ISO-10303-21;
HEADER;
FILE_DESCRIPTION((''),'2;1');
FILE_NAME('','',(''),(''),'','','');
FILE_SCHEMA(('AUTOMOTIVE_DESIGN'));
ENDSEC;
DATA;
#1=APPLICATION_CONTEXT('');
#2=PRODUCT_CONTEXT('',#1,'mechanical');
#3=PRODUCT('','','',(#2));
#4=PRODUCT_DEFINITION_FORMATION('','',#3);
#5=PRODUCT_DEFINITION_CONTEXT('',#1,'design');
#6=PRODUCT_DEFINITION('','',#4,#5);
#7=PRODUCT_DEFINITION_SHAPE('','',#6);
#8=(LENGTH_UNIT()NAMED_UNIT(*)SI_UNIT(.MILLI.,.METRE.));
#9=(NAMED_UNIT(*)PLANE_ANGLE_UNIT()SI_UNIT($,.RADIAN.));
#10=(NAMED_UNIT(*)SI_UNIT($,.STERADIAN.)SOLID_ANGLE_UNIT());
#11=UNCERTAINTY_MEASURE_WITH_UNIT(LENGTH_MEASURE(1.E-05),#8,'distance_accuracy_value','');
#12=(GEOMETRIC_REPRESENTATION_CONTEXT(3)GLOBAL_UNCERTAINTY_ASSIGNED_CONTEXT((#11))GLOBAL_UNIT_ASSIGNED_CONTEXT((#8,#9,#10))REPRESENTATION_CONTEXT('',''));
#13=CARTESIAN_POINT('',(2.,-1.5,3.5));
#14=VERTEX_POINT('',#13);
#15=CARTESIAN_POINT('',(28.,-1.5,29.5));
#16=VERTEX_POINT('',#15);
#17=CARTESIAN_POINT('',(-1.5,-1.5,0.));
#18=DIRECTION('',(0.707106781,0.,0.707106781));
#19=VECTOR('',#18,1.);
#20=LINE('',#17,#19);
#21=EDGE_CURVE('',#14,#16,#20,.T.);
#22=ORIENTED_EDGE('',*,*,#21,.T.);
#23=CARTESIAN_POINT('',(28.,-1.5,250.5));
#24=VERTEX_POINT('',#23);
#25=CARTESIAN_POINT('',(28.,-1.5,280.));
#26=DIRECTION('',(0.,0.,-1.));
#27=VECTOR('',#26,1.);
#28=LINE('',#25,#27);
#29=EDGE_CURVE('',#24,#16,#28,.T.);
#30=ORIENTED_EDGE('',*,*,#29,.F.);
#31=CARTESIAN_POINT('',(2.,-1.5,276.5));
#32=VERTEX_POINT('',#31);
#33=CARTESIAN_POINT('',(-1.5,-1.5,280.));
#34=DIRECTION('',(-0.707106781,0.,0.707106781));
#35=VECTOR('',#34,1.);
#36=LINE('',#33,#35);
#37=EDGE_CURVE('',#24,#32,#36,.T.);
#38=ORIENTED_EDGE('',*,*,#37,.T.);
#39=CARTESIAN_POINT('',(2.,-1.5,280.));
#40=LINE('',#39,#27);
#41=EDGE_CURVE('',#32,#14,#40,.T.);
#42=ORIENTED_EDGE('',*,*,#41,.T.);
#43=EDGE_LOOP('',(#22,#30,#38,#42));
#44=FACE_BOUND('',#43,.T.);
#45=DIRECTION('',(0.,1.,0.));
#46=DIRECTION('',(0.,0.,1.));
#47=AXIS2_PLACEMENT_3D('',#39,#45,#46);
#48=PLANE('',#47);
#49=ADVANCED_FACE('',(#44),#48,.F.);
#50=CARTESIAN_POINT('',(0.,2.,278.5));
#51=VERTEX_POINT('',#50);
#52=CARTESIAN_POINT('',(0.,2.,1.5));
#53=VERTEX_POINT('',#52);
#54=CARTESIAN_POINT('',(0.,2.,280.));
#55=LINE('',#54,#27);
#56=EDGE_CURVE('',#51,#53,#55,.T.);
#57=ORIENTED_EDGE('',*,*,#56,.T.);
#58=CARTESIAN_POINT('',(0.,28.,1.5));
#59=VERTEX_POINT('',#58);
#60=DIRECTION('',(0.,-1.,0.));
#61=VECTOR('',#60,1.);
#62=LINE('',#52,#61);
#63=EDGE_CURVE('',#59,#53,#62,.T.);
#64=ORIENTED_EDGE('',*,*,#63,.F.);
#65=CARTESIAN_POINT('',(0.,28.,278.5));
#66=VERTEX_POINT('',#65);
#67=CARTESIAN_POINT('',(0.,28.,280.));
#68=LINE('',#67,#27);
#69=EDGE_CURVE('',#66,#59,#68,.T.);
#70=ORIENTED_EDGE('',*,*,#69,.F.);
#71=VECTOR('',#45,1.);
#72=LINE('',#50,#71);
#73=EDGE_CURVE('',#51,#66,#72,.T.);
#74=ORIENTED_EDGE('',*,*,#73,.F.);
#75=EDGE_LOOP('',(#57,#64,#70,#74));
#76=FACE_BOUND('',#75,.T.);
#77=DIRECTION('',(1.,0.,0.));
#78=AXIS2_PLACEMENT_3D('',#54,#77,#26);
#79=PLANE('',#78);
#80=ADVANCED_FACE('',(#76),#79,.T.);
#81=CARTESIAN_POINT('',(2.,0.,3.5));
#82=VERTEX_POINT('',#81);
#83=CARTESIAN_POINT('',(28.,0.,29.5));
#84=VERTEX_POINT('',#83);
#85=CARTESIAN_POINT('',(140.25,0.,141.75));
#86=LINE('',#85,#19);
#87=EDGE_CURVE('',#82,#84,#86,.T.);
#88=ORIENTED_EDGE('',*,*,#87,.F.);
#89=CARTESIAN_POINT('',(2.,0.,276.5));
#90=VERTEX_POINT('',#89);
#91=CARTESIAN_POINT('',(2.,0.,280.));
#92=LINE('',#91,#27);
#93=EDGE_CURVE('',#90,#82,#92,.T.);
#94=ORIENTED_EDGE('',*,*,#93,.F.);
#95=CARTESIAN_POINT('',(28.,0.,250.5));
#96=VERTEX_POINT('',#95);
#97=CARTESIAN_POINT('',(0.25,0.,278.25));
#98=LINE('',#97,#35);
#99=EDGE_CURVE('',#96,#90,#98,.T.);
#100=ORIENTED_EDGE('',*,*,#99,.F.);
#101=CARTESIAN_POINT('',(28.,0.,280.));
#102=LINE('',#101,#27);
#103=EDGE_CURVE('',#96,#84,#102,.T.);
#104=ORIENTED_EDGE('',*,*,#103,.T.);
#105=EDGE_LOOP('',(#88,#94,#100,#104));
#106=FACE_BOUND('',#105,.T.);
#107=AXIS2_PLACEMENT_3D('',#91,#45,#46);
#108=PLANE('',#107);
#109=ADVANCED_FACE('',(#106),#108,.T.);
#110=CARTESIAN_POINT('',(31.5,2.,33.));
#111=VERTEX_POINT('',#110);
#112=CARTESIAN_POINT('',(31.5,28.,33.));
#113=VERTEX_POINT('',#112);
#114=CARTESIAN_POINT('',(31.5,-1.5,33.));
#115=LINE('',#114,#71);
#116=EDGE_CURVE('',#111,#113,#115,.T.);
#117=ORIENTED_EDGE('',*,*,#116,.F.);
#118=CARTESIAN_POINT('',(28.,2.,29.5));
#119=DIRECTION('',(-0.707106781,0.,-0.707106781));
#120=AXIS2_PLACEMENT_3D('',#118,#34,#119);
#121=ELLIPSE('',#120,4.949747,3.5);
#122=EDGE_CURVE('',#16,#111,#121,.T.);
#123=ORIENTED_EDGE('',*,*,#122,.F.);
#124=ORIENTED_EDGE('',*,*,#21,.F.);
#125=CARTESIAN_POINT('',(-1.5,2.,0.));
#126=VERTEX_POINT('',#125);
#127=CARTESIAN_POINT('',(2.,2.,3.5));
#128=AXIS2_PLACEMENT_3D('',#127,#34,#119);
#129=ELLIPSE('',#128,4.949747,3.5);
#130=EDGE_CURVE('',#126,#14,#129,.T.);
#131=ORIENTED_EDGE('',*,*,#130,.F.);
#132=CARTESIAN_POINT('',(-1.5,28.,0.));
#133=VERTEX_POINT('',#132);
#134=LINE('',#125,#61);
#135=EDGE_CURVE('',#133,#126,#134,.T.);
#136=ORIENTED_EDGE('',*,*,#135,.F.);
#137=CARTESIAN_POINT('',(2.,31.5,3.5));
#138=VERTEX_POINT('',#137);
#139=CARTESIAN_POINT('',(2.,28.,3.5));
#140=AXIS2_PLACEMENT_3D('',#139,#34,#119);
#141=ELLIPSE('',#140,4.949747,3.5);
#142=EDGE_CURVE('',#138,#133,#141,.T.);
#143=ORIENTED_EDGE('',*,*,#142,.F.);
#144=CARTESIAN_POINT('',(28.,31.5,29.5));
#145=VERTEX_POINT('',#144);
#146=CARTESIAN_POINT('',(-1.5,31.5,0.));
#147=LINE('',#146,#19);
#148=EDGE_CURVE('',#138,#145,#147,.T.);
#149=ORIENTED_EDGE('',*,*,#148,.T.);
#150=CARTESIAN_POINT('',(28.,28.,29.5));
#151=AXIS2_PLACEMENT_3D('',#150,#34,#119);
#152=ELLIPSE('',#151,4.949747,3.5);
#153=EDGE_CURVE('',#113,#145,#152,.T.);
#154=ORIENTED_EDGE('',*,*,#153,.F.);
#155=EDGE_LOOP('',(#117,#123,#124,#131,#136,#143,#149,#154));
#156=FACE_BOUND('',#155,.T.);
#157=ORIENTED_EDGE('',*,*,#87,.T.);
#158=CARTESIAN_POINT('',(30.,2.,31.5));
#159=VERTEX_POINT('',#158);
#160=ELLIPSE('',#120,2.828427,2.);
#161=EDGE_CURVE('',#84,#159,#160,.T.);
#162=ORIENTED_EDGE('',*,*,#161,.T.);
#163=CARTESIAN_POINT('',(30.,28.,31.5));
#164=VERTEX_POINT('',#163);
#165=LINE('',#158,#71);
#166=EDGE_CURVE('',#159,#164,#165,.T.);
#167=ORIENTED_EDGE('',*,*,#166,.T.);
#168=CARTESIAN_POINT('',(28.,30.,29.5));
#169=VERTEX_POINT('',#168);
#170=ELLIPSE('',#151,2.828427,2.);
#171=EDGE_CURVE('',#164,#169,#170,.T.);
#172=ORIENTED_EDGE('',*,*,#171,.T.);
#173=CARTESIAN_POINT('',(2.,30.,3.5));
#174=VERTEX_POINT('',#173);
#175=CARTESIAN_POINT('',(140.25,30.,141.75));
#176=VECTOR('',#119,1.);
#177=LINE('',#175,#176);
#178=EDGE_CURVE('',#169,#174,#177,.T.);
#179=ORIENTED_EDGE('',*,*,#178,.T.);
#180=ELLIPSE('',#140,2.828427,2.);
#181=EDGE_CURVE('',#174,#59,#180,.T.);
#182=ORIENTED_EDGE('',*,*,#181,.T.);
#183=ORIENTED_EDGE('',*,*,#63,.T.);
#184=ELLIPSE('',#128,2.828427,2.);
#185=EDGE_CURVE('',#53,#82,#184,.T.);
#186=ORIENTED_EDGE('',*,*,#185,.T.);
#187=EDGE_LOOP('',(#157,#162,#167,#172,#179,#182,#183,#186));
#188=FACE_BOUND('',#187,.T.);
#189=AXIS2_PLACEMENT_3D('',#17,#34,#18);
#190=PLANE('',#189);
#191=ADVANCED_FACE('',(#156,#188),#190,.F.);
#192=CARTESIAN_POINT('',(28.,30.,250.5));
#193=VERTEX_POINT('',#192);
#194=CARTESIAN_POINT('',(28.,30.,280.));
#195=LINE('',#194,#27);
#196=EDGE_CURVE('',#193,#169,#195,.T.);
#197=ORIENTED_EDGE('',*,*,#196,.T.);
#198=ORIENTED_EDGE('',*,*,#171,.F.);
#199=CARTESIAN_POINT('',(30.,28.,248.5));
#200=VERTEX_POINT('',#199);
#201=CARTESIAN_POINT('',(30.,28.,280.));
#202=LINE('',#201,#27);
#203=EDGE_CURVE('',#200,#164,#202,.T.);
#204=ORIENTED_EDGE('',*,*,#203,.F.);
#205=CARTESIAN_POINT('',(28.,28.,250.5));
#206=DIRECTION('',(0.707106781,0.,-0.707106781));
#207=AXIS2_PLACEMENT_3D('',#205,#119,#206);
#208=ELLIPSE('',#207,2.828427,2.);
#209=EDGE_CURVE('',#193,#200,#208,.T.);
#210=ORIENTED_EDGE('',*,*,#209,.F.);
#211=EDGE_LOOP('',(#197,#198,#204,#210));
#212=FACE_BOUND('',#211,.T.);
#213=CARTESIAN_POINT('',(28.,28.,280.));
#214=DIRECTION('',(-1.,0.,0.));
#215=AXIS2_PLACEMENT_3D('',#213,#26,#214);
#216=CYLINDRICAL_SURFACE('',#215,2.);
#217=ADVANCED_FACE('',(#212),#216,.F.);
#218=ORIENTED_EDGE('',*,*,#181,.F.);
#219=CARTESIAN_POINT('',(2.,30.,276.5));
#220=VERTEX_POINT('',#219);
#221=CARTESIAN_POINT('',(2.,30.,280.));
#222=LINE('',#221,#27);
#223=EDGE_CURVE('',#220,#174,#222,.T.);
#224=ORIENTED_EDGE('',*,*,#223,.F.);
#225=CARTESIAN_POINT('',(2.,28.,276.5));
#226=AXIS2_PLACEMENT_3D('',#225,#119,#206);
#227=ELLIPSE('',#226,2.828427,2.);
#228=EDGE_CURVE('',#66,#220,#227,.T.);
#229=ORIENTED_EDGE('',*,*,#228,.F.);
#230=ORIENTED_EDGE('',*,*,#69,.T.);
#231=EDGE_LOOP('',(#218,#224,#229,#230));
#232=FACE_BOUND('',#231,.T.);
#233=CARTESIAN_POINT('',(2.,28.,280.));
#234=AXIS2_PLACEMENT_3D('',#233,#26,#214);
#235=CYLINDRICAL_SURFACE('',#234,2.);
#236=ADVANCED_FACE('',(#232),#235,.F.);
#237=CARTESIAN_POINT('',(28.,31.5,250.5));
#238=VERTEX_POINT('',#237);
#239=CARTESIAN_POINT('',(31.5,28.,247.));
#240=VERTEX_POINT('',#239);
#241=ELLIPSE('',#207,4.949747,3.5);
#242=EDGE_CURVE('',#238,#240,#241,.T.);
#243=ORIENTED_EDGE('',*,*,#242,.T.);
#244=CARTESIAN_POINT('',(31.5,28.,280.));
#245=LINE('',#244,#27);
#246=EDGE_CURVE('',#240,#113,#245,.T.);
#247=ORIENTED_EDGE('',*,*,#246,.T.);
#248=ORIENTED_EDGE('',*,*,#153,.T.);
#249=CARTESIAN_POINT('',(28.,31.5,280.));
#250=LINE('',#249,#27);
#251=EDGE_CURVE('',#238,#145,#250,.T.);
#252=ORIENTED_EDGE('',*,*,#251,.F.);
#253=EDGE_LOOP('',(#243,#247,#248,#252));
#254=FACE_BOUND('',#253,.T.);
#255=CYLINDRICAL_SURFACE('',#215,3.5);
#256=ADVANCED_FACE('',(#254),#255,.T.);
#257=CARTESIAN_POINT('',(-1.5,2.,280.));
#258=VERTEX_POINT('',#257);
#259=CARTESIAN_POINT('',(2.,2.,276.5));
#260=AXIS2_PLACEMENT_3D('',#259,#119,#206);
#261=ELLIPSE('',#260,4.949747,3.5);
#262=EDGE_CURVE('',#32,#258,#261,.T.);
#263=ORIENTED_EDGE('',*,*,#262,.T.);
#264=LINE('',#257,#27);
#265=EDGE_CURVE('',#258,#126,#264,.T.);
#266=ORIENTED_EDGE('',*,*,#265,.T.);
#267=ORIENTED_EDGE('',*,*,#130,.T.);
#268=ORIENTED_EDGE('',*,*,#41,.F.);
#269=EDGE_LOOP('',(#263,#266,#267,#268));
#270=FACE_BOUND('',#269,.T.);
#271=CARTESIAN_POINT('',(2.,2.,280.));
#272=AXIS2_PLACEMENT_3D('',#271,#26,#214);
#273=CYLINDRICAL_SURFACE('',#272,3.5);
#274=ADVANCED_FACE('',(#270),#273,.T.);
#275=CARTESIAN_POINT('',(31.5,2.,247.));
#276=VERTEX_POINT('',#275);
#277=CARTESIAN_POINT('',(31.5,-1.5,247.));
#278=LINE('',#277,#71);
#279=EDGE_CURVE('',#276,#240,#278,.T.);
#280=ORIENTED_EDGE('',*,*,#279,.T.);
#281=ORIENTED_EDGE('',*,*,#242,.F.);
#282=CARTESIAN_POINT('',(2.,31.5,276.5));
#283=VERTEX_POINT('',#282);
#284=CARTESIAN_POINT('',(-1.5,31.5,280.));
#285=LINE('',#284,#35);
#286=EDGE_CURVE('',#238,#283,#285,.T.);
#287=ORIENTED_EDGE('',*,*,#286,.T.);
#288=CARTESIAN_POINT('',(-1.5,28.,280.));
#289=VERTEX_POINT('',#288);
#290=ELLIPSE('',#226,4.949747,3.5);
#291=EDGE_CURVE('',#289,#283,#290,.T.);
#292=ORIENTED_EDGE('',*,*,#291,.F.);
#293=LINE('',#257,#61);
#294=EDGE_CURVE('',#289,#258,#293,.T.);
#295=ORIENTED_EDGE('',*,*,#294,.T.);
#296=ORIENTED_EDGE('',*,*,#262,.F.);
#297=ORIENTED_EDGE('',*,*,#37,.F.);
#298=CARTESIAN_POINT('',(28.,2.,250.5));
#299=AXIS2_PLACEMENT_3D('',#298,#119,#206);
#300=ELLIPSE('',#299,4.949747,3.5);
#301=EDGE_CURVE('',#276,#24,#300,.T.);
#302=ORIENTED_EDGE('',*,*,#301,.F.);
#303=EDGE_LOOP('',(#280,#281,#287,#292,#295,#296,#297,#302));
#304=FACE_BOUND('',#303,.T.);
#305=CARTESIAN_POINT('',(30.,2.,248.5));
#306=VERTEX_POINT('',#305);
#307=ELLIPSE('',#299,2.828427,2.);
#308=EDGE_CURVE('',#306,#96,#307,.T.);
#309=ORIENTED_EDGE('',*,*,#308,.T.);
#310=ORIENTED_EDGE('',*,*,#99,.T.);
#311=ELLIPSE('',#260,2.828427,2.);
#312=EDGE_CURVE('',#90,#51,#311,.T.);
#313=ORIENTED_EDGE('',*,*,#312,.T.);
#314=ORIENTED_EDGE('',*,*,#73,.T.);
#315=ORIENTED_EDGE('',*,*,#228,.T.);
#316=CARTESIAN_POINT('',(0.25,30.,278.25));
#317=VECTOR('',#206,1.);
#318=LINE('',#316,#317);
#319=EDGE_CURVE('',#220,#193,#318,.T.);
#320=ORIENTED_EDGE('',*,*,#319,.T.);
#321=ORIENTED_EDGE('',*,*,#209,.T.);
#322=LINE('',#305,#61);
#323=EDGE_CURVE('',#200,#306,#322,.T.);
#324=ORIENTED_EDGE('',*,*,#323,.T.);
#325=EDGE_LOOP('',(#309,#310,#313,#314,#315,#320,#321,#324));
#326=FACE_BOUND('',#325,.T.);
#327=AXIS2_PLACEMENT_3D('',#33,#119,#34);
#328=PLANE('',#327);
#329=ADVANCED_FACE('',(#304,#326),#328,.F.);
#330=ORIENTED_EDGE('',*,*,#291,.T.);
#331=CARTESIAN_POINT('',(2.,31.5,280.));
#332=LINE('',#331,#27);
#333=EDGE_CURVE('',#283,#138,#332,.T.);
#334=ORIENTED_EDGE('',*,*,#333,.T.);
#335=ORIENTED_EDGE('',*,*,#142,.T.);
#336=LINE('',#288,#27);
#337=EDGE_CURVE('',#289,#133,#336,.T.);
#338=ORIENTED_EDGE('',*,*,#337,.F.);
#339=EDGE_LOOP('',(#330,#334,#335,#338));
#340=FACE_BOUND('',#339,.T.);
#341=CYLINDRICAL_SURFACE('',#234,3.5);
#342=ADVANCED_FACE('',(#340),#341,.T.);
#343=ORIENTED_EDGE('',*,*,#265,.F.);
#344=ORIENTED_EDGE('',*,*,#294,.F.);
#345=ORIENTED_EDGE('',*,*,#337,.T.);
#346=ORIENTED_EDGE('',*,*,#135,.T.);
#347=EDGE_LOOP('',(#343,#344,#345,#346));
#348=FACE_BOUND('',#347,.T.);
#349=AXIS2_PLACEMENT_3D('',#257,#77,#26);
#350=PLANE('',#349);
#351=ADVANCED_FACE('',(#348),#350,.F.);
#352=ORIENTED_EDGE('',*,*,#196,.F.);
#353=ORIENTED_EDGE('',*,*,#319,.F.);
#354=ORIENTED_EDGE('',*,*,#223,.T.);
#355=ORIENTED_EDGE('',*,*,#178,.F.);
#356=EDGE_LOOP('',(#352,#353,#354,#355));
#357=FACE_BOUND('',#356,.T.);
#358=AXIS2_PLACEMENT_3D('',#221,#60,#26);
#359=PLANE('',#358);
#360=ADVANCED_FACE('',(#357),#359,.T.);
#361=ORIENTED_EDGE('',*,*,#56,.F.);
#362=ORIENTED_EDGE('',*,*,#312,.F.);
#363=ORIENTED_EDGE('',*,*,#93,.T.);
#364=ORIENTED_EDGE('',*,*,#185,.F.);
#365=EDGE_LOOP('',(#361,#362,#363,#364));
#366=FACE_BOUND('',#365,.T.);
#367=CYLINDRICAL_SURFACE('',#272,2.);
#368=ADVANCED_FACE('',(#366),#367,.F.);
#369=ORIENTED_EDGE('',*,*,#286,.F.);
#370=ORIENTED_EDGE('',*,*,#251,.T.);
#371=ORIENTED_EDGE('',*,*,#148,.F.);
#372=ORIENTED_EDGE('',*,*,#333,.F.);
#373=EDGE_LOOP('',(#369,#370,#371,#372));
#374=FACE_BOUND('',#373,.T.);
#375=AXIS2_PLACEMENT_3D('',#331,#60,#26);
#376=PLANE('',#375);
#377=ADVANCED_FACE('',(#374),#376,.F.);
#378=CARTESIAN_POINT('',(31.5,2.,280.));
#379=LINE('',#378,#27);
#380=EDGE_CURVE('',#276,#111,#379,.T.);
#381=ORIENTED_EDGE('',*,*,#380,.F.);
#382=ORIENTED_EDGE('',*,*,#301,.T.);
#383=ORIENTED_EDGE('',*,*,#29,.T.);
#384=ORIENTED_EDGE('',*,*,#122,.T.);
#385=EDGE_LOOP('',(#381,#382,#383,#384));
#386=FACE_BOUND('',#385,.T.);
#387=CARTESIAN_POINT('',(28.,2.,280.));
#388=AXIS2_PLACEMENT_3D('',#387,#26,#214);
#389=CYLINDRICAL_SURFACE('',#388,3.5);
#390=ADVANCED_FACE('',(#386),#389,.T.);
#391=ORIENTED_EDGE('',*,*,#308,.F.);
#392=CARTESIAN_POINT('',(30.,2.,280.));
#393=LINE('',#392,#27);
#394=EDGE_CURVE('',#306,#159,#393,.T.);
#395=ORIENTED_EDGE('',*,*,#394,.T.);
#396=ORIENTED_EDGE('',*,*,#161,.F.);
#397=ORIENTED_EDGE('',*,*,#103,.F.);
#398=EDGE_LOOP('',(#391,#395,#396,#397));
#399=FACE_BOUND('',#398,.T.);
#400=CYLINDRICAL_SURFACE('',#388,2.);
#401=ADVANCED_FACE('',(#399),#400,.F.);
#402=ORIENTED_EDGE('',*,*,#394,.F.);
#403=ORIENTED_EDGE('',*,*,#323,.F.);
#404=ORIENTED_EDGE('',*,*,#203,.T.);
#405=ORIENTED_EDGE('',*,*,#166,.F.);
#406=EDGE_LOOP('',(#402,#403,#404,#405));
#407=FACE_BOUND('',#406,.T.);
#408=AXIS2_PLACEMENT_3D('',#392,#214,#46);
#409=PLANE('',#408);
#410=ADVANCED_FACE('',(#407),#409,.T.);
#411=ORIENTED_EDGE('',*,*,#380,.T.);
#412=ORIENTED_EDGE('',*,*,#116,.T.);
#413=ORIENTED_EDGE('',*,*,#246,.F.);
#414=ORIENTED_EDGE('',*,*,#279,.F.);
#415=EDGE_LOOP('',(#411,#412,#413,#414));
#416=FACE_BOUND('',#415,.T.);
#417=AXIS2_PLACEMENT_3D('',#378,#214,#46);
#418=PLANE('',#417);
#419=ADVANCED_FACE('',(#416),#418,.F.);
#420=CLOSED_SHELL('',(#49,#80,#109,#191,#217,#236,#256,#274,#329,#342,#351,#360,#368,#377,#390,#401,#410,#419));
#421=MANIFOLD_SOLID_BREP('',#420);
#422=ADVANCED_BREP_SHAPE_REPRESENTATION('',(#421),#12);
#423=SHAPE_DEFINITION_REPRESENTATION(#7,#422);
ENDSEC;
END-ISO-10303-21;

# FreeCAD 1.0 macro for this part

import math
import FreeCAD as App
import Part
import Sketcher


def add_polygon(sketch, points):
    """Adds a closed chain of lines whose ends are joined by coincident constraints."""
    first, n = sketch.GeometryCount, len(points)
    for a, b in zip(points, points[1:] + points[:1]):
        sketch.addGeometry(Part.LineSegment(App.Vector(*a, 0), App.Vector(*b, 0)), False)
    for i in range(n):
        sketch.addConstraint(Sketcher.Constraint("Coincident", first + i, 2, first + (i + 1) % n, 1))

doc = App.newDocument("Part")
body = doc.addObject("PartDesign::Body", "Body")

# Sketch on XY plane
sketch1 = body.newObject("Sketcher::SketchObject", "Sketch")
sketch1.AttachmentSupport = (doc.getObject("XY_Plane"), [""])
sketch1.MapMode = "FlatFace"
sketch1.addGeometry([
    Part.LineSegment(App.Vector(2, -1.5, 0), App.Vector(28, -1.5, 0)),  # 0
    Part.ArcOfCircle(Part.Circle(App.Vector(28, 2, 0), App.Vector(0, 0, 1), 3.5), math.radians(-90), math.radians(0)),  # 1
    Part.LineSegment(App.Vector(31.5, 2, 0), App.Vector(31.5, 28, 0)),  # 2
    Part.ArcOfCircle(Part.Circle(App.Vector(28, 28, 0), App.Vector(0, 0, 1), 3.5), math.radians(0), math.radians(90)),  # 3
    Part.LineSegment(App.Vector(28, 31.5, 0), App.Vector(2, 31.5, 0)),  # 4
    Part.ArcOfCircle(Part.Circle(App.Vector(2, 28, 0), App.Vector(0, 0, 1), 3.5), math.radians(90), math.radians(180)),  # 5
    Part.LineSegment(App.Vector(-1.5, 28, 0), App.Vector(-1.5, 2, 0)),  # 6
    Part.ArcOfCircle(Part.Circle(App.Vector(2, 2, 0), App.Vector(0, 0, 1), 3.5), math.radians(-180), math.radians(-90)),  # 7
    Part.LineSegment(App.Vector(28, 0, 0), App.Vector(2, 0, 0)),  # 8
    Part.ArcOfCircle(Part.Circle(App.Vector(2, 2, 0), App.Vector(0, 0, 1), 2), math.radians(-180), math.radians(-90)),  # 9
    Part.LineSegment(App.Vector(0, 2, 0), App.Vector(0, 28, 0)),  # 10
    Part.ArcOfCircle(Part.Circle(App.Vector(2, 28, 0), App.Vector(0, 0, 1), 2), math.radians(90), math.radians(180)),  # 11
    Part.LineSegment(App.Vector(2, 30, 0), App.Vector(28, 30, 0)),  # 12
    Part.ArcOfCircle(Part.Circle(App.Vector(28, 28, 0), App.Vector(0, 0, 1), 2), math.radians(0), math.radians(90)),  # 13
    Part.LineSegment(App.Vector(30, 28, 0), App.Vector(30, 2, 0)),  # 14
    Part.ArcOfCircle(Part.Circle(App.Vector(28, 2, 0), App.Vector(0, 0, 1), 2), math.radians(-90), math.radians(0)),  # 15
], False)
sketch1.addConstraint([
    Sketcher.Constraint("Tangent", 0, 2, 1, 1),
    Sketcher.Constraint("Tangent", 1, 2, 2, 1),
    Sketcher.Constraint("Tangent", 2, 2, 3, 1),
    Sketcher.Constraint("Tangent", 3, 2, 4, 1),
    Sketcher.Constraint("Tangent", 4, 2, 5, 1),
    Sketcher.Constraint("Tangent", 5, 2, 6, 1),
    Sketcher.Constraint("Tangent", 6, 2, 7, 1),
    Sketcher.Constraint("Tangent", 7, 2, 0, 1),
    Sketcher.Constraint("Tangent", 8, 2, 9, 2),
    Sketcher.Constraint("Tangent", 9, 1, 10, 1),
    Sketcher.Constraint("Tangent", 10, 2, 11, 2),
    Sketcher.Constraint("Tangent", 11, 1, 12, 1),
    Sketcher.Constraint("Tangent", 12, 2, 13, 2),
    Sketcher.Constraint("Tangent", 13, 1, 14, 1),
    Sketcher.Constraint("Tangent", 14, 2, 15, 2),
    Sketcher.Constraint("Tangent", 15, 1, 8, 1),
    Sketcher.Constraint("Horizontal", 0),
    Sketcher.Constraint("Vertical", 2),
    Sketcher.Constraint("Horizontal", 4),
    Sketcher.Constraint("Vertical", 6),
    Sketcher.Constraint("Horizontal", 8),
    Sketcher.Constraint("Vertical", 10),
    Sketcher.Constraint("Horizontal", 12),
    Sketcher.Constraint("Vertical", 14),
    Sketcher.Constraint("Coincident", 9, 3, 7, 3),
    Sketcher.Constraint("Coincident", 11, 3, 5, 3),
    Sketcher.Constraint("Coincident", 13, 3, 3, 3),
    Sketcher.Constraint("Equal", 1, 3),
    Sketcher.Constraint("Equal", 3, 5),
    Sketcher.Constraint("Equal", 5, 7),
    Sketcher.Constraint("Equal", 13, 15),
    Sketcher.Constraint("PointOnObject", 8, 2, -1),
    Sketcher.Constraint("PointOnObject", 9, 1, -2),
    Sketcher.Constraint("Equal", 12, 2),
    Sketcher.Constraint("Radius", 9, 2.0),
    Sketcher.Constraint("Radius", 1, 3.5),
    Sketcher.Constraint("DistanceX", 0, 1, 0, 2, 26.0),
])
pad1 = body.newObject("PartDesign::Pad", "Pad")
pad1.Profile = sketch1
pad1.Length = 280

# Sketch on XZ plane
sketch2 = body.newObject("Sketcher::SketchObject", "Sketch001")
sketch2.AttachmentSupport = (doc.getObject("XZ_Plane"), [""])
sketch2.MapMode = "FlatFace"
sketch2.AttachmentOffset = App.Placement(App.Vector(0, 0, -31.5), App.Rotation())
add_polygon(sketch2, [(-2, 0), (32, 33), (32, 0)])  # lines 0-2
add_polygon(sketch2, [(32, 247), (-2, 280), (32, 280)])  # lines 3-5
sketch2.addConstraint([
    Sketcher.Constraint("Vertical", 1),
    Sketcher.Constraint("Horizontal", 2),
    Sketcher.Constraint("Horizontal", 4),
    Sketcher.Constraint("Vertical", 5),
    Sketcher.Constraint("PointOnObject", 1, 2, -1),
    Sketcher.Constraint("Perpendicular", 0, 3),
    Sketcher.Constraint("Vertical", 2, 2, 3, 2),
    Sketcher.Constraint("Vertical", 1, 2, 4, 2),
    Sketcher.Constraint("Equal", 4, 1),
    Sketcher.Constraint("DistanceX", 2, 2, 2, 1, 33.0),
    Sketcher.Constraint("DistanceY", -1, 1, 3, 2, 280.0),
    Sketcher.Constraint("DistanceX", -1, 1, 0, 2, 31.5),
])
pocket1 = body.newObject("PartDesign::Pocket", "Pocket")
pocket1.Profile = sketch2
pocket1.Type = "ThroughAll"
pocket1.Reversed = True

doc.recompute()
